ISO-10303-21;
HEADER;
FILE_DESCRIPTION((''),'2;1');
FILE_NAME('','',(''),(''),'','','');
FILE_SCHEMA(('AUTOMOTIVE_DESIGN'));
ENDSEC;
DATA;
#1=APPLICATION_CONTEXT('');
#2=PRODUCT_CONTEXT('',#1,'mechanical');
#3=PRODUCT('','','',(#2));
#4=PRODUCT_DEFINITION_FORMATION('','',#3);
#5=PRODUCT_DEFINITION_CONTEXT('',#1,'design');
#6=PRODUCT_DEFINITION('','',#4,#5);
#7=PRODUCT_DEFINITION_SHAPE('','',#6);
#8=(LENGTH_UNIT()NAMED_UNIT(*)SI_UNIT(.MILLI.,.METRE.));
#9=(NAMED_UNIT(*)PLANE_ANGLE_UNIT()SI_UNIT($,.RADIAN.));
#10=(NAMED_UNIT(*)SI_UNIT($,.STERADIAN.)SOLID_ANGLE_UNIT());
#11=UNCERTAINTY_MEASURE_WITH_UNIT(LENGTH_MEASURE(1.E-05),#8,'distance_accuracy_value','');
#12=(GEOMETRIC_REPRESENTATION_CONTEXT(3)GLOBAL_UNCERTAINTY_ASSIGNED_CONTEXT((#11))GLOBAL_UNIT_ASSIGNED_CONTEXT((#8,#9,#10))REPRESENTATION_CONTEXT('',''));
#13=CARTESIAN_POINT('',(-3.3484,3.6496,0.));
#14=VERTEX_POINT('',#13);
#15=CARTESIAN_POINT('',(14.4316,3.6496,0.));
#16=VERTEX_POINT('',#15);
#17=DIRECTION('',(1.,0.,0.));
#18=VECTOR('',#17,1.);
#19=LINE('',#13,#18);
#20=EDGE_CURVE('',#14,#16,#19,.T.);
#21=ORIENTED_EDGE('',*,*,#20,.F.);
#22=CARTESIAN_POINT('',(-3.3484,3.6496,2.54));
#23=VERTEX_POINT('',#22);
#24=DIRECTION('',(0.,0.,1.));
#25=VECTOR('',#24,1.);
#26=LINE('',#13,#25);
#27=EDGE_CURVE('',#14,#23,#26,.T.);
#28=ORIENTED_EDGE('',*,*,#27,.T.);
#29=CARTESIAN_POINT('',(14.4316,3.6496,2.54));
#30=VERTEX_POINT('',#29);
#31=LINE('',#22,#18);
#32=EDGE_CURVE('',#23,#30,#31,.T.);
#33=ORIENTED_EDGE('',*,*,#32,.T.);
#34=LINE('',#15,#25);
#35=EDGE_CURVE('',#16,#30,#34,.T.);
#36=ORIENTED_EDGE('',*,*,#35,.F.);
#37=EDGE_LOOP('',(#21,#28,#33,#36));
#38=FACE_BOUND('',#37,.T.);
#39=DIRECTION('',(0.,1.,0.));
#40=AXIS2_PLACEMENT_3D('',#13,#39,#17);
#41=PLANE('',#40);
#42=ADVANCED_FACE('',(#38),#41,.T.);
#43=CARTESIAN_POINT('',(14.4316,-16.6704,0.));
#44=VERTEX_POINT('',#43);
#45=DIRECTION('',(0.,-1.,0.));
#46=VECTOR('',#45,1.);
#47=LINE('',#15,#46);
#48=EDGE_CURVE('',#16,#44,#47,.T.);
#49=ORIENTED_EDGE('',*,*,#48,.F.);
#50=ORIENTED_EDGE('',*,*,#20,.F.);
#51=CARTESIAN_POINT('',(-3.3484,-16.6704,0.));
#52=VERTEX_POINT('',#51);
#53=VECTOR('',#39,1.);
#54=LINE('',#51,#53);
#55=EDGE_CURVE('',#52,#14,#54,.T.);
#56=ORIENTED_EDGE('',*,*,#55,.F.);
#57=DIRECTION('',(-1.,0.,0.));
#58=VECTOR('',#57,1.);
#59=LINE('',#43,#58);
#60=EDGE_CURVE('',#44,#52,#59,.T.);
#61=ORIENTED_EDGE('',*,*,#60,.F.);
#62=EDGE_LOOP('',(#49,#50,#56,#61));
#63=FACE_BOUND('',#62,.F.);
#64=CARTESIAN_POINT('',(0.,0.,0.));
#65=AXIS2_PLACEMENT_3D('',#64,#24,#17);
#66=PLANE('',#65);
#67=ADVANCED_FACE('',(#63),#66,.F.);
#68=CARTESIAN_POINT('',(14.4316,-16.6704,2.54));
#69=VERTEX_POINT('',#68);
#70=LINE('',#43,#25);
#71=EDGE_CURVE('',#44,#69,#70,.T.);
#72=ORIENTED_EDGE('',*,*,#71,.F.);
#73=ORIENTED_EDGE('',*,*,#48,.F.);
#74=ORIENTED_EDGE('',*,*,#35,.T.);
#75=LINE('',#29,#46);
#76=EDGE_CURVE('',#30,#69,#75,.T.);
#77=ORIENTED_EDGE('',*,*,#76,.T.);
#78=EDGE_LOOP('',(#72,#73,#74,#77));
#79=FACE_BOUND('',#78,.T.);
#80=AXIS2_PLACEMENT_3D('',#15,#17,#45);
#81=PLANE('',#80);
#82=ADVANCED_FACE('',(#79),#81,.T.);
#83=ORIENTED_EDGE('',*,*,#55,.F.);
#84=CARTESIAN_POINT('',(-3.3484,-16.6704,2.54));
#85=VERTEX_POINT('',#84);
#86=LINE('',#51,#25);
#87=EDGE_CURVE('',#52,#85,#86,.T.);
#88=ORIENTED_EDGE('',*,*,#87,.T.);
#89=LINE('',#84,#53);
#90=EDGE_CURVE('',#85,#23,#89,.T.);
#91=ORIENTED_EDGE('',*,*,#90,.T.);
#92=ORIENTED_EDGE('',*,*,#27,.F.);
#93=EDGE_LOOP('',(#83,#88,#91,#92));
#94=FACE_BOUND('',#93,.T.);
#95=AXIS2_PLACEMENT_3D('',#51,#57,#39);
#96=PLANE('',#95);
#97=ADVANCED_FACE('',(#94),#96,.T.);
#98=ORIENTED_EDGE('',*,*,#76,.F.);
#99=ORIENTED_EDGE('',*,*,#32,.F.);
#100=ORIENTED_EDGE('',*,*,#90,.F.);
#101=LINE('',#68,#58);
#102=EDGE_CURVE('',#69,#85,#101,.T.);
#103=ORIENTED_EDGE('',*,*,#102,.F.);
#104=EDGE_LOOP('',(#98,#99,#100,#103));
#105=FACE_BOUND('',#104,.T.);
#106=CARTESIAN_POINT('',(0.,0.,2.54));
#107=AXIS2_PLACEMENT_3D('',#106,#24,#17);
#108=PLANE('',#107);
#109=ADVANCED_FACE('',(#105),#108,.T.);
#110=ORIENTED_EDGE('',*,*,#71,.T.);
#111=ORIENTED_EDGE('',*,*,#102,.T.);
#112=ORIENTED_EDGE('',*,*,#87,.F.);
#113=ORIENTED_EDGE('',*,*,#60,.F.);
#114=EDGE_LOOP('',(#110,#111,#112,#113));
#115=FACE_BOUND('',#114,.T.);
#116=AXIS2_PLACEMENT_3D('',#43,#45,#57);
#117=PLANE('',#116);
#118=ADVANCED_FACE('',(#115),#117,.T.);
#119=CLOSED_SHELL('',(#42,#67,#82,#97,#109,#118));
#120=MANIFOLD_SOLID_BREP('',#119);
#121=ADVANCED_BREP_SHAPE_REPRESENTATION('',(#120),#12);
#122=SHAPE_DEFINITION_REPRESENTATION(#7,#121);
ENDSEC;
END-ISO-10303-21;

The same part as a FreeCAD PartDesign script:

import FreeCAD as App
import Part
import Sketcher

V = App.Vector
Q = App.Units.Quantity


def add_polygon(sketch, points):
    """Adds a closed chain of lines whose ends are joined by coincident constraints."""
    first, n = sketch.GeometryCount, len(points)
    for a, b in zip(points, points[1:] + points[:1]):
        sketch.addGeometry(Part.LineSegment(App.Vector(*a, 0), App.Vector(*b, 0)), False)
    for i in range(n):
        sketch.addConstraint(Sketcher.Constraint("Coincident", first + i, 2, first + (i + 1) % n, 1))

doc = App.newDocument("Part")
body = doc.addObject("PartDesign::Body", "Body")

# Sketch on XY plane
sketch1 = doc.addObject("Sketcher::SketchObject", "Sketch")
body.addObject(sketch1)
sketch1.AttachmentSupport = (doc.XY_Plane, [""])
sketch1.MapMode = "FlatFace"
add_polygon(sketch1, [(14, 4), (-3, 4), (-3, -17), (14, -17)])  # lines 0-3
sketch1.addConstraint([
    Sketcher.Constraint("Horizontal", 0),
    Sketcher.Constraint("Vertical", 1),
    Sketcher.Constraint("Horizontal", 2),
    Sketcher.Constraint("Vertical", 3),
    Sketcher.Constraint("DistanceX", 0, 2, 0, 1, Q("0.7 in")),
    Sketcher.Constraint("DistanceY", 1, 2, 1, 1, Q("0.8 in")),
    Sketcher.Constraint("DistanceX", 0, 2, -1, 1, Q("3.3484 mm")),
    Sketcher.Constraint("DistanceY", -1, 1, 0, 2, Q("3.6496 mm")),
])
pad1 = doc.addObject("PartDesign::Pad", "Pad")
body.addObject(pad1)
pad1.Profile = sketch1
pad1.Length = Q("0.1 in")

doc.recompute()
